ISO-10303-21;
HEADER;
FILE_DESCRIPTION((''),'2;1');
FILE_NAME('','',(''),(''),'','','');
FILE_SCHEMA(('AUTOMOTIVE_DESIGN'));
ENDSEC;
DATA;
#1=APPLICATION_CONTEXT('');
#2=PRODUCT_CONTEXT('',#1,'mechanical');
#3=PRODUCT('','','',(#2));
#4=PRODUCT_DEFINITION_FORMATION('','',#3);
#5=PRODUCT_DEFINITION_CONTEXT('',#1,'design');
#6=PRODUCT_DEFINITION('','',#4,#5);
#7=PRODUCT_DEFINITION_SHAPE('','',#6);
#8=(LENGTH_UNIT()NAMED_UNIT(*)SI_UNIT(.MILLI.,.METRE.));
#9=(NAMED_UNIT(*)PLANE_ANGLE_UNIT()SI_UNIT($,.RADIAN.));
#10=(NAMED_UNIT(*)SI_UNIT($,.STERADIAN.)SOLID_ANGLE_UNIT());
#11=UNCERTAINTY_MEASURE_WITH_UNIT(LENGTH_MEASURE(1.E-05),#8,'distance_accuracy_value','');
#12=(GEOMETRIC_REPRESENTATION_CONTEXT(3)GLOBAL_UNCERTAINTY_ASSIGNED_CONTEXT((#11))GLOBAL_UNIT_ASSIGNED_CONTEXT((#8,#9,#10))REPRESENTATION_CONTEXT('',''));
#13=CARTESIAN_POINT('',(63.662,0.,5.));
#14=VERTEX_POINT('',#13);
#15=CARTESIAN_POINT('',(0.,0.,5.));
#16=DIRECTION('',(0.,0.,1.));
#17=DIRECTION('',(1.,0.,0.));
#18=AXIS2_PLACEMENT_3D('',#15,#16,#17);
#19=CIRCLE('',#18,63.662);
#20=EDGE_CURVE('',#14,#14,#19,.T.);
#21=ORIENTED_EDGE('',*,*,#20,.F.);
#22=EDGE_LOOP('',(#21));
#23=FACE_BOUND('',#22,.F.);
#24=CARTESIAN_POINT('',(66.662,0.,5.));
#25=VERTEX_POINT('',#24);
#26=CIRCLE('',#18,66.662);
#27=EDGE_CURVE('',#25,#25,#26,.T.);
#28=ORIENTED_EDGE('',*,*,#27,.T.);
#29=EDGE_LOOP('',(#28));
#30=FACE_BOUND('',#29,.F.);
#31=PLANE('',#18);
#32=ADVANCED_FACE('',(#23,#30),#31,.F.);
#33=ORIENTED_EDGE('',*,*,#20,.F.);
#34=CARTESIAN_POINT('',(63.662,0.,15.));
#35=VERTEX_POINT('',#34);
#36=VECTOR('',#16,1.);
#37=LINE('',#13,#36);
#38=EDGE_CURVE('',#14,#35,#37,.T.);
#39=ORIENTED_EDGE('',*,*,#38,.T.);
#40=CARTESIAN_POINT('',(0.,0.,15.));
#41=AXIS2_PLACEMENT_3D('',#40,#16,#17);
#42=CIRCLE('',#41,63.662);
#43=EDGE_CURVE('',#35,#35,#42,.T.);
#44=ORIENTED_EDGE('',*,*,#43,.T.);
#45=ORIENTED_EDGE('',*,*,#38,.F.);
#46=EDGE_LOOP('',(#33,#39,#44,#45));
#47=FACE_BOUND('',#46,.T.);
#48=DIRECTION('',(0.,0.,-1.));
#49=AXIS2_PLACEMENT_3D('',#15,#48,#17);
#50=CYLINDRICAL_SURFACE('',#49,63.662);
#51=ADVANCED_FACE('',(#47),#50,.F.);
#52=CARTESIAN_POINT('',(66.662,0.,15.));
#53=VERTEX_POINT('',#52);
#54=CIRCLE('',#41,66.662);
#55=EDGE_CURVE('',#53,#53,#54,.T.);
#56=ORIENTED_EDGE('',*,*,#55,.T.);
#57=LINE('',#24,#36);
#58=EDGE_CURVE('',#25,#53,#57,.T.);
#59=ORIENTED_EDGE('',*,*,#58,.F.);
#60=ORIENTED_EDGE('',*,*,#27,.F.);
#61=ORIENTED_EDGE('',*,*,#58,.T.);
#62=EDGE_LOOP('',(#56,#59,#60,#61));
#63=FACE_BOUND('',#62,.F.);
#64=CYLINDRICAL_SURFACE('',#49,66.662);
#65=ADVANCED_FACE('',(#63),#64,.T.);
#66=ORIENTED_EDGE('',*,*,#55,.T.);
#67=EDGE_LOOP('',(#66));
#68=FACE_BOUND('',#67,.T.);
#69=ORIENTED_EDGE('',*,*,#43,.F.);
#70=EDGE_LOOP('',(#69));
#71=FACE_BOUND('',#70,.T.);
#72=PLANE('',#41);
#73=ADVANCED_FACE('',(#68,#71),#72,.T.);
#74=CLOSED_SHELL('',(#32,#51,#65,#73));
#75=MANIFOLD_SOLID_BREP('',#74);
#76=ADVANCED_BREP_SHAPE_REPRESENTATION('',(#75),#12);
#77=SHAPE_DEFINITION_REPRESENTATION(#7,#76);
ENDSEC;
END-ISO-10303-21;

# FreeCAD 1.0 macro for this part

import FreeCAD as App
import Part
import Sketcher

V = App.Vector

doc = App.newDocument("Part")
params = doc.addObject("Spreadsheet::Sheet", "Params")
for row, (alias, value) in enumerate([
    ("pad1_length", "10 mm"),
], start=1):
    params.set(f"A{row}", alias)
    params.set(f"B{row}", "=" + value)
    params.setAlias(f"B{row}", alias)

body = doc.addObject("PartDesign::Body", "Body")

# Sketch on XY plane
sketch1 = doc.addObject("Sketcher::SketchObject", "Sketch")
body.addObject(sketch1)
sketch1.AttachmentSupport = (doc.XY_Plane, [""])
sketch1.MapMode = "FlatFace"
sketch1.AttachmentOffset = App.Placement(V(0, 0, 5), App.Rotation())
sketch1.addGeometry(Part.Circle(V(0, 0, 0), V(0, 0, 1), 67), False)
sketch1.addGeometry(Part.Circle(V(0, 0, 0), V(0, 0, 1), 64), False)
sketch1.addConstraint(Sketcher.Constraint("Coincident", 0, 3, -1, 1))
sketch1.addConstraint(Sketcher.Constraint("Coincident", 1, 3, -1, 1))
sketch1.addConstraint(Sketcher.Constraint("Diameter", 1, 127.324))
sketch1.addConstraint(Sketcher.Constraint("Diameter", 0, 133.324))
pad1 = doc.addObject("PartDesign::Pad", "Pad")
body.addObject(pad1)
pad1.Profile = sketch1
pad1.setExpression("Length", "Params.pad1_length")

doc.recompute()
